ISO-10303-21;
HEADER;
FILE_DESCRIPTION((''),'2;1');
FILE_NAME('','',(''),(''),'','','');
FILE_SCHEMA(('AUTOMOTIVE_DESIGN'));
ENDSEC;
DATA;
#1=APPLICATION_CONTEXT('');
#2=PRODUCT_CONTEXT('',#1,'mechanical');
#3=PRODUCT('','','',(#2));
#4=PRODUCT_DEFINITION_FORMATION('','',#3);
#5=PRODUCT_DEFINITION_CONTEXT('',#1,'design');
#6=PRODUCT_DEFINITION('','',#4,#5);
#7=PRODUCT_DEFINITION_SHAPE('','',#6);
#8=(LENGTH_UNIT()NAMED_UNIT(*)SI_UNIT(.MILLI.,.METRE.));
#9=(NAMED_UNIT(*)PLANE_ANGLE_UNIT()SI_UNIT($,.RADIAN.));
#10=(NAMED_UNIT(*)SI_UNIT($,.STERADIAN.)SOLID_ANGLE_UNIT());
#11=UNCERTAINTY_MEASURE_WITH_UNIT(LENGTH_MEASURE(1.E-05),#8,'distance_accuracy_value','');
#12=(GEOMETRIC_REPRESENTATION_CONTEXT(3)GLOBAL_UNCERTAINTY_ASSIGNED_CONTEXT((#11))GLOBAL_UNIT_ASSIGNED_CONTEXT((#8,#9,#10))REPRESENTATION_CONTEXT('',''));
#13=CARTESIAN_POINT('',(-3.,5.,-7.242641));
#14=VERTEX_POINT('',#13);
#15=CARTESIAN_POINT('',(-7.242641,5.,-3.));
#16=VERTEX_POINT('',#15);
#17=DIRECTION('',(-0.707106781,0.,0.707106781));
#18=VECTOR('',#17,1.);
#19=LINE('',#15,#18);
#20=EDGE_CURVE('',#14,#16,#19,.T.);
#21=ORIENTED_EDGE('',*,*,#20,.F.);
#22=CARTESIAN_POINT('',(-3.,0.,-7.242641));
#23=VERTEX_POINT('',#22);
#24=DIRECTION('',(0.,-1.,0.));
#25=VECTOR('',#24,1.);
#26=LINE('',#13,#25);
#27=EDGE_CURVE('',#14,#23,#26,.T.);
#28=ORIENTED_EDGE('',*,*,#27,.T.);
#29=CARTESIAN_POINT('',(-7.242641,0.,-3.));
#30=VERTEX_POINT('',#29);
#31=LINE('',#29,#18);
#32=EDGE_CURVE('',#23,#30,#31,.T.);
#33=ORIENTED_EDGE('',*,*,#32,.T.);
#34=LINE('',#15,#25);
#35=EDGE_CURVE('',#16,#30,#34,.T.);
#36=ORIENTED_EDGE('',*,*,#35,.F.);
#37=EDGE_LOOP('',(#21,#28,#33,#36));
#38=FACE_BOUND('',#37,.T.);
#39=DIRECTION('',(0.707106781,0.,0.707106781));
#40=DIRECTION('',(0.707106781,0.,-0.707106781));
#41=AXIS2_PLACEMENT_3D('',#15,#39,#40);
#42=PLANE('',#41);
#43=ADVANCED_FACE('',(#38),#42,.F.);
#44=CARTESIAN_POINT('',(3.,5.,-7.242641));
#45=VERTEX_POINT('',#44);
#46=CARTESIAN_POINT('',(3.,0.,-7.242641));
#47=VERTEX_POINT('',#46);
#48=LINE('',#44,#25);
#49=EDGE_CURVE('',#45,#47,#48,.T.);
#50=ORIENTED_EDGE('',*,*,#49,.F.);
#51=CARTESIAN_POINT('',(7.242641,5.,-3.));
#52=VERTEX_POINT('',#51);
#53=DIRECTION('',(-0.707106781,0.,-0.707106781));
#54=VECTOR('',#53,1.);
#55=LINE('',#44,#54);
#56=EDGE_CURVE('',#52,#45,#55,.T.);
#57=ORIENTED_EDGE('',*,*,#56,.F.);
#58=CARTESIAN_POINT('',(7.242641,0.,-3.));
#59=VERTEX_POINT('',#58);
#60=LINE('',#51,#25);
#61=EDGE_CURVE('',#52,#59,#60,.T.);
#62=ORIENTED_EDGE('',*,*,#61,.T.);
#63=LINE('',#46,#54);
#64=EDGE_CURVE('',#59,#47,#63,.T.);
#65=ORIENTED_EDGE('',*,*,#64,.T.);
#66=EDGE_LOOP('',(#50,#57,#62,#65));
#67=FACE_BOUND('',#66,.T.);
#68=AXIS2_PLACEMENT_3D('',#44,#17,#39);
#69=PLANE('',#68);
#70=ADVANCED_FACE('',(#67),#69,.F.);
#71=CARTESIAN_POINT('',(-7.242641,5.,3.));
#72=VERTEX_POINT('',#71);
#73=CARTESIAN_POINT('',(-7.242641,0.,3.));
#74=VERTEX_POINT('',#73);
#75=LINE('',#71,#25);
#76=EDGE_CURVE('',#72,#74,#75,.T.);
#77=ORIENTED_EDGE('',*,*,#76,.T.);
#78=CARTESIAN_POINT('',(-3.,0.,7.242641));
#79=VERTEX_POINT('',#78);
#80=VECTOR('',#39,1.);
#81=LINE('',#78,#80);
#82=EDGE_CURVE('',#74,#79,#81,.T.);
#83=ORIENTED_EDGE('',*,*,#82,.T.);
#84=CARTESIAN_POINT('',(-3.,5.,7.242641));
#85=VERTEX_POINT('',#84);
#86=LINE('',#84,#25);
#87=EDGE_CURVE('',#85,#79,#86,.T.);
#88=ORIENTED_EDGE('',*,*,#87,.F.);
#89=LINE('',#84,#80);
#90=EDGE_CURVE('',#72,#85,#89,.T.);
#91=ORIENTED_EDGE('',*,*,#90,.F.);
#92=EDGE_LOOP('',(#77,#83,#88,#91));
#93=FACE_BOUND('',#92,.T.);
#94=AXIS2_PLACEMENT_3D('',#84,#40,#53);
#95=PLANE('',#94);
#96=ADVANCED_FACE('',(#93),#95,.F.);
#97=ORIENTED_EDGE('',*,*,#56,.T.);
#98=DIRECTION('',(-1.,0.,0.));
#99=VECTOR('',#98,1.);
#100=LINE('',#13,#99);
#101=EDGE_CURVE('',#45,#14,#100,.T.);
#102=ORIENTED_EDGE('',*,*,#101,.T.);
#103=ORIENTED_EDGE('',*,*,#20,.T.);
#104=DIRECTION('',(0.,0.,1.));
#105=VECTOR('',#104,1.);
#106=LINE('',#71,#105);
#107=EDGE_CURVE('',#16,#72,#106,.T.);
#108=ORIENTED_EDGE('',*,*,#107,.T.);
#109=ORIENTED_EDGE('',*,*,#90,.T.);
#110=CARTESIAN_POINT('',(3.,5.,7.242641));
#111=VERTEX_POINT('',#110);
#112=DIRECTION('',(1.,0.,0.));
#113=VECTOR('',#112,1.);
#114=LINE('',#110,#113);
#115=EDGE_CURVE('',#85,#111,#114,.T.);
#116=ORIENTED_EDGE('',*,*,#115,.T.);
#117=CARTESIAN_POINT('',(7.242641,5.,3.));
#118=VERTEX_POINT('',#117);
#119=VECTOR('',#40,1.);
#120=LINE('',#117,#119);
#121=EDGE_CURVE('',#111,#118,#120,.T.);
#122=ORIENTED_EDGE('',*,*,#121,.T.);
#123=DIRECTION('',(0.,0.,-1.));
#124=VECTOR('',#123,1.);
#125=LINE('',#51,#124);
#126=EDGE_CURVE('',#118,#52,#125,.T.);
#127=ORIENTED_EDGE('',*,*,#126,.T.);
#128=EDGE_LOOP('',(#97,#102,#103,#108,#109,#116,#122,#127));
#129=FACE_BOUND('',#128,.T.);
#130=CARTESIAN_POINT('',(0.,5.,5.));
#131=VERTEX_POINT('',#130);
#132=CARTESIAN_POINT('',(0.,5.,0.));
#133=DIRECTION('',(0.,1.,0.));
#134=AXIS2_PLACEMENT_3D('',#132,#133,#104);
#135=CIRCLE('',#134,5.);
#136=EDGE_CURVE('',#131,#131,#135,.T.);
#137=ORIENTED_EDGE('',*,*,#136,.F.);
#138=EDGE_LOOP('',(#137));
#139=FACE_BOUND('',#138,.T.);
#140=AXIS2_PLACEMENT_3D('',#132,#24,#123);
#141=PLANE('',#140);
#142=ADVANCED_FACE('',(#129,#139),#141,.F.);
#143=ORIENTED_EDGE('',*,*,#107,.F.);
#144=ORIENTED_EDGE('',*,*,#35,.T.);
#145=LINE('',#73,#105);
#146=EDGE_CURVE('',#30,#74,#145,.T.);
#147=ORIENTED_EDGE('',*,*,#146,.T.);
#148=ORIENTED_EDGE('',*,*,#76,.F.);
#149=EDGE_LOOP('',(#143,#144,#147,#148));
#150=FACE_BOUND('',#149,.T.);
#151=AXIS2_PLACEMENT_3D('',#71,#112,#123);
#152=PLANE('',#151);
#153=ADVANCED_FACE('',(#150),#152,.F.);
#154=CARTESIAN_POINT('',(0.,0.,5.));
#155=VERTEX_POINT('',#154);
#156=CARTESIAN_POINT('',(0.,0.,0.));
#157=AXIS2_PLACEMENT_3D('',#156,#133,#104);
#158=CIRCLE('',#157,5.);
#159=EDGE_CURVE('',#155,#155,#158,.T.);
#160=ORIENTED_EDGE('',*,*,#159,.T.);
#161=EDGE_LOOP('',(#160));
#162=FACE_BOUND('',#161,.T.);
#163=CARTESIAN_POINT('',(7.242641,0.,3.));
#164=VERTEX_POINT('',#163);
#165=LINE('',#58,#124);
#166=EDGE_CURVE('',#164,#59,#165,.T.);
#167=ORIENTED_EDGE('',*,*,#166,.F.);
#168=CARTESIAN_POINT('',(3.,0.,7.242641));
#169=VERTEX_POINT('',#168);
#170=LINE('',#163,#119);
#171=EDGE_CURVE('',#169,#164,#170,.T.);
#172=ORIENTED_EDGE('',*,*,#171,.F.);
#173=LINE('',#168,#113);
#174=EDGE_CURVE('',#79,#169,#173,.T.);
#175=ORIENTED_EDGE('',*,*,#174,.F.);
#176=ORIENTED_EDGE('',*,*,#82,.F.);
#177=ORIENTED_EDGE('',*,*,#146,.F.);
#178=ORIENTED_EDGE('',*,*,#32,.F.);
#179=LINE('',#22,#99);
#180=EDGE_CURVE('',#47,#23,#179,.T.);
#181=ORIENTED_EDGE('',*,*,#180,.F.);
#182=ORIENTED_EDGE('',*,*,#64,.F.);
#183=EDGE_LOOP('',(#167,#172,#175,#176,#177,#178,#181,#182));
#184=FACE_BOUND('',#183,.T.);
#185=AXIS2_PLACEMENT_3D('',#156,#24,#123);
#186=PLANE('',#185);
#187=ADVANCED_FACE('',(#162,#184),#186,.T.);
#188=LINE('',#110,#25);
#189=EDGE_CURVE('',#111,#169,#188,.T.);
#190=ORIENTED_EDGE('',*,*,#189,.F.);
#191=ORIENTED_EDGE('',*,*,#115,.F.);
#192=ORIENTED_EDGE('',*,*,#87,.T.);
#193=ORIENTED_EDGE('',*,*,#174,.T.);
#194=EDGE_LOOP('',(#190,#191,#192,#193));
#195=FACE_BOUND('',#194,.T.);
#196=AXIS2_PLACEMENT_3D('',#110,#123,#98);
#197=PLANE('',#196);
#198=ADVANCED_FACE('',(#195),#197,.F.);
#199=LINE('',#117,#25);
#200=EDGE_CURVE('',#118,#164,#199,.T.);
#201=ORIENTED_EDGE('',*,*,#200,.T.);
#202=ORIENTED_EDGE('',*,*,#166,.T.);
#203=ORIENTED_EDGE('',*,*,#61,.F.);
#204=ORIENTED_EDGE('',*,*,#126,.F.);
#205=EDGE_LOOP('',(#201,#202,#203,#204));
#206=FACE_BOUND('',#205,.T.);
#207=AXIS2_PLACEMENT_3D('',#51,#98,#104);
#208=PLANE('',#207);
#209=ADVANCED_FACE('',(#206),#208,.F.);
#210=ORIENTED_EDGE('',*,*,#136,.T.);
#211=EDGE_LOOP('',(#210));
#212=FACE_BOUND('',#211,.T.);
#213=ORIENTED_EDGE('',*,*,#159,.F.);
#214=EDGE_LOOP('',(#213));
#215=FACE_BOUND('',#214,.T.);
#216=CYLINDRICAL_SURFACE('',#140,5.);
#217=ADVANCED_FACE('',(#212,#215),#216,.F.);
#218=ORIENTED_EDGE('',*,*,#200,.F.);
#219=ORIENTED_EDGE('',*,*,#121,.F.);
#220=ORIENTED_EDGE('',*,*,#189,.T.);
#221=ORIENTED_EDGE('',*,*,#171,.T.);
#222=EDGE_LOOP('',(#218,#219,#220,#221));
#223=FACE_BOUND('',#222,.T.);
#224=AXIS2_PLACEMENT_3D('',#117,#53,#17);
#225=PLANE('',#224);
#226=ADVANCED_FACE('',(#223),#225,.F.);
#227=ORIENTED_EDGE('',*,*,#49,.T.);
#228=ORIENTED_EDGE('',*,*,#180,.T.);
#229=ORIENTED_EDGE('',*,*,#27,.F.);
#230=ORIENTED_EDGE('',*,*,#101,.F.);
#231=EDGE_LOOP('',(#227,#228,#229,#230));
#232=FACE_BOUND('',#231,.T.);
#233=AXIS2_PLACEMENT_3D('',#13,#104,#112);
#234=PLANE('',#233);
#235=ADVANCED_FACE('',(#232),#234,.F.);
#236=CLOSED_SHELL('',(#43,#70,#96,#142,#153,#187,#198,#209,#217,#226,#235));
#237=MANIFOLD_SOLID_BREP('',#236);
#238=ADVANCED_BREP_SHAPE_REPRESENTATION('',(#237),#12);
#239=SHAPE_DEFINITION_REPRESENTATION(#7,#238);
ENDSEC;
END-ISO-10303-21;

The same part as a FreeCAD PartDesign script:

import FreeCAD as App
import Part
import Sketcher
from FreeCAD import Vector
Q = App.Units.Quantity

doc = App.newDocument("Part")
params = doc.addObject("Spreadsheet::Sheet", "Params")
for row, (alias, value) in enumerate([
    ("sketch1_diameter", "10 mm"),
    ("sketch1_width", "6 mm"),
    ("sketch1_length", "6 mm"),
    ("pad1_length", "5 mm"),
], start=1):
    params.set(f"A{row}", alias)
    params.set(f"B{row}", "=" + value)
    params.setAlias(f"B{row}", alias)

body = doc.addObject("PartDesign::Body", "Body")

sketch1 = body.newObject("Sketcher::SketchObject", "Sketch")
sketch1.AttachmentSupport = (doc.getObject("XZ_Plane"), [""])
sketch1.MapMode = "FlatFace"
sketch1.addGeometry(Part.LineSegment(Vector(3, -7, 0), Vector(-3, -7, 0)), False)
sketch1.addGeometry(Part.LineSegment(Vector(-3, -7, 0), Vector(-7, -3, 0)), False)
sketch1.addGeometry(Part.LineSegment(Vector(-7, -3, 0), Vector(-7, 3, 0)), False)
sketch1.addGeometry(Part.LineSegment(Vector(-7, 3, 0), Vector(-3, 7, 0)), False)
sketch1.addGeometry(Part.LineSegment(Vector(-3, 7, 0), Vector(3, 7, 0)), False)
sketch1.addGeometry(Part.LineSegment(Vector(3, 7, 0), Vector(7, 3, 0)), False)
sketch1.addGeometry(Part.LineSegment(Vector(7, 3, 0), Vector(7, -3, 0)), False)
sketch1.addGeometry(Part.LineSegment(Vector(7, -3, 0), Vector(3, -7, 0)), False)
sketch1.addGeometry(Part.Circle(Vector(0, 0, 0), Vector(0, 0, 1), 5), False)
sketch1.addConstraint(Sketcher.Constraint("Coincident", 0, 2, 1, 1))
sketch1.addConstraint(Sketcher.Constraint("Coincident", 1, 2, 2, 1))
sketch1.addConstraint(Sketcher.Constraint("Coincident", 2, 2, 3, 1))
sketch1.addConstraint(Sketcher.Constraint("Coincident", 3, 2, 4, 1))
sketch1.addConstraint(Sketcher.Constraint("Coincident", 4, 2, 5, 1))
sketch1.addConstraint(Sketcher.Constraint("Coincident", 5, 2, 6, 1))
sketch1.addConstraint(Sketcher.Constraint("Coincident", 6, 2, 7, 1))
sketch1.addConstraint(Sketcher.Constraint("Coincident", 7, 2, 0, 1))
sketch1.addConstraint(Sketcher.Constraint("Horizontal", 0))
sketch1.addConstraint(Sketcher.Constraint("Vertical", 2))
sketch1.addConstraint(Sketcher.Constraint("Horizontal", 4))
sketch1.addConstraint(Sketcher.Constraint("Vertical", 6))
sketch1.addConstraint(Sketcher.Constraint("Coincident", 8, 3, -1, 1))
sketch1.addConstraint(Sketcher.Constraint("Symmetric", 0, 2, 4, 2, -1, 1))
sketch1.addConstraint(Sketcher.Constraint("Symmetric", 1, 2, 5, 2, -1, 1))
sketch1.addConstraint(Sketcher.Constraint("Perpendicular", 1, 3))
sketch1.addConstraint(Sketcher.Constraint("Perpendicular", 5, 7))
sketch1.addConstraint(Sketcher.Constraint("Horizontal", 2, 2, 5, 2))
sketch1.addConstraint(Sketcher.Constraint("Horizontal", 1, 2, 6, 2))
sketch1.addConstraint(Sketcher.Constraint("Vertical", 0, 2, 3, 2))
sketch1.addConstraint(Sketcher.Constraint("Equal", 4, 2))
sketch1.addConstraint(Sketcher.Constraint("Diameter", 8, Q("10 mm")))
sketch1.addConstraint(Sketcher.Constraint("DistanceX", 0, 2, 0, 1, Q("6 mm")))
sketch1.addConstraint(Sketcher.Constraint("Distance", 1, Q("6 mm")))
sketch1.setExpression("Constraints[21]", "Params.sketch1_diameter")
sketch1.setExpression("Constraints[22]", "Params.sketch1_width")
sketch1.setExpression("Constraints[23]", "Params.sketch1_length")
pad1 = body.newObject("PartDesign::Pad", "Pad")
pad1.Profile = sketch1
pad1.setExpression("Length", "Params.pad1_length")
pad1.Reversed = True

doc.recompute()
